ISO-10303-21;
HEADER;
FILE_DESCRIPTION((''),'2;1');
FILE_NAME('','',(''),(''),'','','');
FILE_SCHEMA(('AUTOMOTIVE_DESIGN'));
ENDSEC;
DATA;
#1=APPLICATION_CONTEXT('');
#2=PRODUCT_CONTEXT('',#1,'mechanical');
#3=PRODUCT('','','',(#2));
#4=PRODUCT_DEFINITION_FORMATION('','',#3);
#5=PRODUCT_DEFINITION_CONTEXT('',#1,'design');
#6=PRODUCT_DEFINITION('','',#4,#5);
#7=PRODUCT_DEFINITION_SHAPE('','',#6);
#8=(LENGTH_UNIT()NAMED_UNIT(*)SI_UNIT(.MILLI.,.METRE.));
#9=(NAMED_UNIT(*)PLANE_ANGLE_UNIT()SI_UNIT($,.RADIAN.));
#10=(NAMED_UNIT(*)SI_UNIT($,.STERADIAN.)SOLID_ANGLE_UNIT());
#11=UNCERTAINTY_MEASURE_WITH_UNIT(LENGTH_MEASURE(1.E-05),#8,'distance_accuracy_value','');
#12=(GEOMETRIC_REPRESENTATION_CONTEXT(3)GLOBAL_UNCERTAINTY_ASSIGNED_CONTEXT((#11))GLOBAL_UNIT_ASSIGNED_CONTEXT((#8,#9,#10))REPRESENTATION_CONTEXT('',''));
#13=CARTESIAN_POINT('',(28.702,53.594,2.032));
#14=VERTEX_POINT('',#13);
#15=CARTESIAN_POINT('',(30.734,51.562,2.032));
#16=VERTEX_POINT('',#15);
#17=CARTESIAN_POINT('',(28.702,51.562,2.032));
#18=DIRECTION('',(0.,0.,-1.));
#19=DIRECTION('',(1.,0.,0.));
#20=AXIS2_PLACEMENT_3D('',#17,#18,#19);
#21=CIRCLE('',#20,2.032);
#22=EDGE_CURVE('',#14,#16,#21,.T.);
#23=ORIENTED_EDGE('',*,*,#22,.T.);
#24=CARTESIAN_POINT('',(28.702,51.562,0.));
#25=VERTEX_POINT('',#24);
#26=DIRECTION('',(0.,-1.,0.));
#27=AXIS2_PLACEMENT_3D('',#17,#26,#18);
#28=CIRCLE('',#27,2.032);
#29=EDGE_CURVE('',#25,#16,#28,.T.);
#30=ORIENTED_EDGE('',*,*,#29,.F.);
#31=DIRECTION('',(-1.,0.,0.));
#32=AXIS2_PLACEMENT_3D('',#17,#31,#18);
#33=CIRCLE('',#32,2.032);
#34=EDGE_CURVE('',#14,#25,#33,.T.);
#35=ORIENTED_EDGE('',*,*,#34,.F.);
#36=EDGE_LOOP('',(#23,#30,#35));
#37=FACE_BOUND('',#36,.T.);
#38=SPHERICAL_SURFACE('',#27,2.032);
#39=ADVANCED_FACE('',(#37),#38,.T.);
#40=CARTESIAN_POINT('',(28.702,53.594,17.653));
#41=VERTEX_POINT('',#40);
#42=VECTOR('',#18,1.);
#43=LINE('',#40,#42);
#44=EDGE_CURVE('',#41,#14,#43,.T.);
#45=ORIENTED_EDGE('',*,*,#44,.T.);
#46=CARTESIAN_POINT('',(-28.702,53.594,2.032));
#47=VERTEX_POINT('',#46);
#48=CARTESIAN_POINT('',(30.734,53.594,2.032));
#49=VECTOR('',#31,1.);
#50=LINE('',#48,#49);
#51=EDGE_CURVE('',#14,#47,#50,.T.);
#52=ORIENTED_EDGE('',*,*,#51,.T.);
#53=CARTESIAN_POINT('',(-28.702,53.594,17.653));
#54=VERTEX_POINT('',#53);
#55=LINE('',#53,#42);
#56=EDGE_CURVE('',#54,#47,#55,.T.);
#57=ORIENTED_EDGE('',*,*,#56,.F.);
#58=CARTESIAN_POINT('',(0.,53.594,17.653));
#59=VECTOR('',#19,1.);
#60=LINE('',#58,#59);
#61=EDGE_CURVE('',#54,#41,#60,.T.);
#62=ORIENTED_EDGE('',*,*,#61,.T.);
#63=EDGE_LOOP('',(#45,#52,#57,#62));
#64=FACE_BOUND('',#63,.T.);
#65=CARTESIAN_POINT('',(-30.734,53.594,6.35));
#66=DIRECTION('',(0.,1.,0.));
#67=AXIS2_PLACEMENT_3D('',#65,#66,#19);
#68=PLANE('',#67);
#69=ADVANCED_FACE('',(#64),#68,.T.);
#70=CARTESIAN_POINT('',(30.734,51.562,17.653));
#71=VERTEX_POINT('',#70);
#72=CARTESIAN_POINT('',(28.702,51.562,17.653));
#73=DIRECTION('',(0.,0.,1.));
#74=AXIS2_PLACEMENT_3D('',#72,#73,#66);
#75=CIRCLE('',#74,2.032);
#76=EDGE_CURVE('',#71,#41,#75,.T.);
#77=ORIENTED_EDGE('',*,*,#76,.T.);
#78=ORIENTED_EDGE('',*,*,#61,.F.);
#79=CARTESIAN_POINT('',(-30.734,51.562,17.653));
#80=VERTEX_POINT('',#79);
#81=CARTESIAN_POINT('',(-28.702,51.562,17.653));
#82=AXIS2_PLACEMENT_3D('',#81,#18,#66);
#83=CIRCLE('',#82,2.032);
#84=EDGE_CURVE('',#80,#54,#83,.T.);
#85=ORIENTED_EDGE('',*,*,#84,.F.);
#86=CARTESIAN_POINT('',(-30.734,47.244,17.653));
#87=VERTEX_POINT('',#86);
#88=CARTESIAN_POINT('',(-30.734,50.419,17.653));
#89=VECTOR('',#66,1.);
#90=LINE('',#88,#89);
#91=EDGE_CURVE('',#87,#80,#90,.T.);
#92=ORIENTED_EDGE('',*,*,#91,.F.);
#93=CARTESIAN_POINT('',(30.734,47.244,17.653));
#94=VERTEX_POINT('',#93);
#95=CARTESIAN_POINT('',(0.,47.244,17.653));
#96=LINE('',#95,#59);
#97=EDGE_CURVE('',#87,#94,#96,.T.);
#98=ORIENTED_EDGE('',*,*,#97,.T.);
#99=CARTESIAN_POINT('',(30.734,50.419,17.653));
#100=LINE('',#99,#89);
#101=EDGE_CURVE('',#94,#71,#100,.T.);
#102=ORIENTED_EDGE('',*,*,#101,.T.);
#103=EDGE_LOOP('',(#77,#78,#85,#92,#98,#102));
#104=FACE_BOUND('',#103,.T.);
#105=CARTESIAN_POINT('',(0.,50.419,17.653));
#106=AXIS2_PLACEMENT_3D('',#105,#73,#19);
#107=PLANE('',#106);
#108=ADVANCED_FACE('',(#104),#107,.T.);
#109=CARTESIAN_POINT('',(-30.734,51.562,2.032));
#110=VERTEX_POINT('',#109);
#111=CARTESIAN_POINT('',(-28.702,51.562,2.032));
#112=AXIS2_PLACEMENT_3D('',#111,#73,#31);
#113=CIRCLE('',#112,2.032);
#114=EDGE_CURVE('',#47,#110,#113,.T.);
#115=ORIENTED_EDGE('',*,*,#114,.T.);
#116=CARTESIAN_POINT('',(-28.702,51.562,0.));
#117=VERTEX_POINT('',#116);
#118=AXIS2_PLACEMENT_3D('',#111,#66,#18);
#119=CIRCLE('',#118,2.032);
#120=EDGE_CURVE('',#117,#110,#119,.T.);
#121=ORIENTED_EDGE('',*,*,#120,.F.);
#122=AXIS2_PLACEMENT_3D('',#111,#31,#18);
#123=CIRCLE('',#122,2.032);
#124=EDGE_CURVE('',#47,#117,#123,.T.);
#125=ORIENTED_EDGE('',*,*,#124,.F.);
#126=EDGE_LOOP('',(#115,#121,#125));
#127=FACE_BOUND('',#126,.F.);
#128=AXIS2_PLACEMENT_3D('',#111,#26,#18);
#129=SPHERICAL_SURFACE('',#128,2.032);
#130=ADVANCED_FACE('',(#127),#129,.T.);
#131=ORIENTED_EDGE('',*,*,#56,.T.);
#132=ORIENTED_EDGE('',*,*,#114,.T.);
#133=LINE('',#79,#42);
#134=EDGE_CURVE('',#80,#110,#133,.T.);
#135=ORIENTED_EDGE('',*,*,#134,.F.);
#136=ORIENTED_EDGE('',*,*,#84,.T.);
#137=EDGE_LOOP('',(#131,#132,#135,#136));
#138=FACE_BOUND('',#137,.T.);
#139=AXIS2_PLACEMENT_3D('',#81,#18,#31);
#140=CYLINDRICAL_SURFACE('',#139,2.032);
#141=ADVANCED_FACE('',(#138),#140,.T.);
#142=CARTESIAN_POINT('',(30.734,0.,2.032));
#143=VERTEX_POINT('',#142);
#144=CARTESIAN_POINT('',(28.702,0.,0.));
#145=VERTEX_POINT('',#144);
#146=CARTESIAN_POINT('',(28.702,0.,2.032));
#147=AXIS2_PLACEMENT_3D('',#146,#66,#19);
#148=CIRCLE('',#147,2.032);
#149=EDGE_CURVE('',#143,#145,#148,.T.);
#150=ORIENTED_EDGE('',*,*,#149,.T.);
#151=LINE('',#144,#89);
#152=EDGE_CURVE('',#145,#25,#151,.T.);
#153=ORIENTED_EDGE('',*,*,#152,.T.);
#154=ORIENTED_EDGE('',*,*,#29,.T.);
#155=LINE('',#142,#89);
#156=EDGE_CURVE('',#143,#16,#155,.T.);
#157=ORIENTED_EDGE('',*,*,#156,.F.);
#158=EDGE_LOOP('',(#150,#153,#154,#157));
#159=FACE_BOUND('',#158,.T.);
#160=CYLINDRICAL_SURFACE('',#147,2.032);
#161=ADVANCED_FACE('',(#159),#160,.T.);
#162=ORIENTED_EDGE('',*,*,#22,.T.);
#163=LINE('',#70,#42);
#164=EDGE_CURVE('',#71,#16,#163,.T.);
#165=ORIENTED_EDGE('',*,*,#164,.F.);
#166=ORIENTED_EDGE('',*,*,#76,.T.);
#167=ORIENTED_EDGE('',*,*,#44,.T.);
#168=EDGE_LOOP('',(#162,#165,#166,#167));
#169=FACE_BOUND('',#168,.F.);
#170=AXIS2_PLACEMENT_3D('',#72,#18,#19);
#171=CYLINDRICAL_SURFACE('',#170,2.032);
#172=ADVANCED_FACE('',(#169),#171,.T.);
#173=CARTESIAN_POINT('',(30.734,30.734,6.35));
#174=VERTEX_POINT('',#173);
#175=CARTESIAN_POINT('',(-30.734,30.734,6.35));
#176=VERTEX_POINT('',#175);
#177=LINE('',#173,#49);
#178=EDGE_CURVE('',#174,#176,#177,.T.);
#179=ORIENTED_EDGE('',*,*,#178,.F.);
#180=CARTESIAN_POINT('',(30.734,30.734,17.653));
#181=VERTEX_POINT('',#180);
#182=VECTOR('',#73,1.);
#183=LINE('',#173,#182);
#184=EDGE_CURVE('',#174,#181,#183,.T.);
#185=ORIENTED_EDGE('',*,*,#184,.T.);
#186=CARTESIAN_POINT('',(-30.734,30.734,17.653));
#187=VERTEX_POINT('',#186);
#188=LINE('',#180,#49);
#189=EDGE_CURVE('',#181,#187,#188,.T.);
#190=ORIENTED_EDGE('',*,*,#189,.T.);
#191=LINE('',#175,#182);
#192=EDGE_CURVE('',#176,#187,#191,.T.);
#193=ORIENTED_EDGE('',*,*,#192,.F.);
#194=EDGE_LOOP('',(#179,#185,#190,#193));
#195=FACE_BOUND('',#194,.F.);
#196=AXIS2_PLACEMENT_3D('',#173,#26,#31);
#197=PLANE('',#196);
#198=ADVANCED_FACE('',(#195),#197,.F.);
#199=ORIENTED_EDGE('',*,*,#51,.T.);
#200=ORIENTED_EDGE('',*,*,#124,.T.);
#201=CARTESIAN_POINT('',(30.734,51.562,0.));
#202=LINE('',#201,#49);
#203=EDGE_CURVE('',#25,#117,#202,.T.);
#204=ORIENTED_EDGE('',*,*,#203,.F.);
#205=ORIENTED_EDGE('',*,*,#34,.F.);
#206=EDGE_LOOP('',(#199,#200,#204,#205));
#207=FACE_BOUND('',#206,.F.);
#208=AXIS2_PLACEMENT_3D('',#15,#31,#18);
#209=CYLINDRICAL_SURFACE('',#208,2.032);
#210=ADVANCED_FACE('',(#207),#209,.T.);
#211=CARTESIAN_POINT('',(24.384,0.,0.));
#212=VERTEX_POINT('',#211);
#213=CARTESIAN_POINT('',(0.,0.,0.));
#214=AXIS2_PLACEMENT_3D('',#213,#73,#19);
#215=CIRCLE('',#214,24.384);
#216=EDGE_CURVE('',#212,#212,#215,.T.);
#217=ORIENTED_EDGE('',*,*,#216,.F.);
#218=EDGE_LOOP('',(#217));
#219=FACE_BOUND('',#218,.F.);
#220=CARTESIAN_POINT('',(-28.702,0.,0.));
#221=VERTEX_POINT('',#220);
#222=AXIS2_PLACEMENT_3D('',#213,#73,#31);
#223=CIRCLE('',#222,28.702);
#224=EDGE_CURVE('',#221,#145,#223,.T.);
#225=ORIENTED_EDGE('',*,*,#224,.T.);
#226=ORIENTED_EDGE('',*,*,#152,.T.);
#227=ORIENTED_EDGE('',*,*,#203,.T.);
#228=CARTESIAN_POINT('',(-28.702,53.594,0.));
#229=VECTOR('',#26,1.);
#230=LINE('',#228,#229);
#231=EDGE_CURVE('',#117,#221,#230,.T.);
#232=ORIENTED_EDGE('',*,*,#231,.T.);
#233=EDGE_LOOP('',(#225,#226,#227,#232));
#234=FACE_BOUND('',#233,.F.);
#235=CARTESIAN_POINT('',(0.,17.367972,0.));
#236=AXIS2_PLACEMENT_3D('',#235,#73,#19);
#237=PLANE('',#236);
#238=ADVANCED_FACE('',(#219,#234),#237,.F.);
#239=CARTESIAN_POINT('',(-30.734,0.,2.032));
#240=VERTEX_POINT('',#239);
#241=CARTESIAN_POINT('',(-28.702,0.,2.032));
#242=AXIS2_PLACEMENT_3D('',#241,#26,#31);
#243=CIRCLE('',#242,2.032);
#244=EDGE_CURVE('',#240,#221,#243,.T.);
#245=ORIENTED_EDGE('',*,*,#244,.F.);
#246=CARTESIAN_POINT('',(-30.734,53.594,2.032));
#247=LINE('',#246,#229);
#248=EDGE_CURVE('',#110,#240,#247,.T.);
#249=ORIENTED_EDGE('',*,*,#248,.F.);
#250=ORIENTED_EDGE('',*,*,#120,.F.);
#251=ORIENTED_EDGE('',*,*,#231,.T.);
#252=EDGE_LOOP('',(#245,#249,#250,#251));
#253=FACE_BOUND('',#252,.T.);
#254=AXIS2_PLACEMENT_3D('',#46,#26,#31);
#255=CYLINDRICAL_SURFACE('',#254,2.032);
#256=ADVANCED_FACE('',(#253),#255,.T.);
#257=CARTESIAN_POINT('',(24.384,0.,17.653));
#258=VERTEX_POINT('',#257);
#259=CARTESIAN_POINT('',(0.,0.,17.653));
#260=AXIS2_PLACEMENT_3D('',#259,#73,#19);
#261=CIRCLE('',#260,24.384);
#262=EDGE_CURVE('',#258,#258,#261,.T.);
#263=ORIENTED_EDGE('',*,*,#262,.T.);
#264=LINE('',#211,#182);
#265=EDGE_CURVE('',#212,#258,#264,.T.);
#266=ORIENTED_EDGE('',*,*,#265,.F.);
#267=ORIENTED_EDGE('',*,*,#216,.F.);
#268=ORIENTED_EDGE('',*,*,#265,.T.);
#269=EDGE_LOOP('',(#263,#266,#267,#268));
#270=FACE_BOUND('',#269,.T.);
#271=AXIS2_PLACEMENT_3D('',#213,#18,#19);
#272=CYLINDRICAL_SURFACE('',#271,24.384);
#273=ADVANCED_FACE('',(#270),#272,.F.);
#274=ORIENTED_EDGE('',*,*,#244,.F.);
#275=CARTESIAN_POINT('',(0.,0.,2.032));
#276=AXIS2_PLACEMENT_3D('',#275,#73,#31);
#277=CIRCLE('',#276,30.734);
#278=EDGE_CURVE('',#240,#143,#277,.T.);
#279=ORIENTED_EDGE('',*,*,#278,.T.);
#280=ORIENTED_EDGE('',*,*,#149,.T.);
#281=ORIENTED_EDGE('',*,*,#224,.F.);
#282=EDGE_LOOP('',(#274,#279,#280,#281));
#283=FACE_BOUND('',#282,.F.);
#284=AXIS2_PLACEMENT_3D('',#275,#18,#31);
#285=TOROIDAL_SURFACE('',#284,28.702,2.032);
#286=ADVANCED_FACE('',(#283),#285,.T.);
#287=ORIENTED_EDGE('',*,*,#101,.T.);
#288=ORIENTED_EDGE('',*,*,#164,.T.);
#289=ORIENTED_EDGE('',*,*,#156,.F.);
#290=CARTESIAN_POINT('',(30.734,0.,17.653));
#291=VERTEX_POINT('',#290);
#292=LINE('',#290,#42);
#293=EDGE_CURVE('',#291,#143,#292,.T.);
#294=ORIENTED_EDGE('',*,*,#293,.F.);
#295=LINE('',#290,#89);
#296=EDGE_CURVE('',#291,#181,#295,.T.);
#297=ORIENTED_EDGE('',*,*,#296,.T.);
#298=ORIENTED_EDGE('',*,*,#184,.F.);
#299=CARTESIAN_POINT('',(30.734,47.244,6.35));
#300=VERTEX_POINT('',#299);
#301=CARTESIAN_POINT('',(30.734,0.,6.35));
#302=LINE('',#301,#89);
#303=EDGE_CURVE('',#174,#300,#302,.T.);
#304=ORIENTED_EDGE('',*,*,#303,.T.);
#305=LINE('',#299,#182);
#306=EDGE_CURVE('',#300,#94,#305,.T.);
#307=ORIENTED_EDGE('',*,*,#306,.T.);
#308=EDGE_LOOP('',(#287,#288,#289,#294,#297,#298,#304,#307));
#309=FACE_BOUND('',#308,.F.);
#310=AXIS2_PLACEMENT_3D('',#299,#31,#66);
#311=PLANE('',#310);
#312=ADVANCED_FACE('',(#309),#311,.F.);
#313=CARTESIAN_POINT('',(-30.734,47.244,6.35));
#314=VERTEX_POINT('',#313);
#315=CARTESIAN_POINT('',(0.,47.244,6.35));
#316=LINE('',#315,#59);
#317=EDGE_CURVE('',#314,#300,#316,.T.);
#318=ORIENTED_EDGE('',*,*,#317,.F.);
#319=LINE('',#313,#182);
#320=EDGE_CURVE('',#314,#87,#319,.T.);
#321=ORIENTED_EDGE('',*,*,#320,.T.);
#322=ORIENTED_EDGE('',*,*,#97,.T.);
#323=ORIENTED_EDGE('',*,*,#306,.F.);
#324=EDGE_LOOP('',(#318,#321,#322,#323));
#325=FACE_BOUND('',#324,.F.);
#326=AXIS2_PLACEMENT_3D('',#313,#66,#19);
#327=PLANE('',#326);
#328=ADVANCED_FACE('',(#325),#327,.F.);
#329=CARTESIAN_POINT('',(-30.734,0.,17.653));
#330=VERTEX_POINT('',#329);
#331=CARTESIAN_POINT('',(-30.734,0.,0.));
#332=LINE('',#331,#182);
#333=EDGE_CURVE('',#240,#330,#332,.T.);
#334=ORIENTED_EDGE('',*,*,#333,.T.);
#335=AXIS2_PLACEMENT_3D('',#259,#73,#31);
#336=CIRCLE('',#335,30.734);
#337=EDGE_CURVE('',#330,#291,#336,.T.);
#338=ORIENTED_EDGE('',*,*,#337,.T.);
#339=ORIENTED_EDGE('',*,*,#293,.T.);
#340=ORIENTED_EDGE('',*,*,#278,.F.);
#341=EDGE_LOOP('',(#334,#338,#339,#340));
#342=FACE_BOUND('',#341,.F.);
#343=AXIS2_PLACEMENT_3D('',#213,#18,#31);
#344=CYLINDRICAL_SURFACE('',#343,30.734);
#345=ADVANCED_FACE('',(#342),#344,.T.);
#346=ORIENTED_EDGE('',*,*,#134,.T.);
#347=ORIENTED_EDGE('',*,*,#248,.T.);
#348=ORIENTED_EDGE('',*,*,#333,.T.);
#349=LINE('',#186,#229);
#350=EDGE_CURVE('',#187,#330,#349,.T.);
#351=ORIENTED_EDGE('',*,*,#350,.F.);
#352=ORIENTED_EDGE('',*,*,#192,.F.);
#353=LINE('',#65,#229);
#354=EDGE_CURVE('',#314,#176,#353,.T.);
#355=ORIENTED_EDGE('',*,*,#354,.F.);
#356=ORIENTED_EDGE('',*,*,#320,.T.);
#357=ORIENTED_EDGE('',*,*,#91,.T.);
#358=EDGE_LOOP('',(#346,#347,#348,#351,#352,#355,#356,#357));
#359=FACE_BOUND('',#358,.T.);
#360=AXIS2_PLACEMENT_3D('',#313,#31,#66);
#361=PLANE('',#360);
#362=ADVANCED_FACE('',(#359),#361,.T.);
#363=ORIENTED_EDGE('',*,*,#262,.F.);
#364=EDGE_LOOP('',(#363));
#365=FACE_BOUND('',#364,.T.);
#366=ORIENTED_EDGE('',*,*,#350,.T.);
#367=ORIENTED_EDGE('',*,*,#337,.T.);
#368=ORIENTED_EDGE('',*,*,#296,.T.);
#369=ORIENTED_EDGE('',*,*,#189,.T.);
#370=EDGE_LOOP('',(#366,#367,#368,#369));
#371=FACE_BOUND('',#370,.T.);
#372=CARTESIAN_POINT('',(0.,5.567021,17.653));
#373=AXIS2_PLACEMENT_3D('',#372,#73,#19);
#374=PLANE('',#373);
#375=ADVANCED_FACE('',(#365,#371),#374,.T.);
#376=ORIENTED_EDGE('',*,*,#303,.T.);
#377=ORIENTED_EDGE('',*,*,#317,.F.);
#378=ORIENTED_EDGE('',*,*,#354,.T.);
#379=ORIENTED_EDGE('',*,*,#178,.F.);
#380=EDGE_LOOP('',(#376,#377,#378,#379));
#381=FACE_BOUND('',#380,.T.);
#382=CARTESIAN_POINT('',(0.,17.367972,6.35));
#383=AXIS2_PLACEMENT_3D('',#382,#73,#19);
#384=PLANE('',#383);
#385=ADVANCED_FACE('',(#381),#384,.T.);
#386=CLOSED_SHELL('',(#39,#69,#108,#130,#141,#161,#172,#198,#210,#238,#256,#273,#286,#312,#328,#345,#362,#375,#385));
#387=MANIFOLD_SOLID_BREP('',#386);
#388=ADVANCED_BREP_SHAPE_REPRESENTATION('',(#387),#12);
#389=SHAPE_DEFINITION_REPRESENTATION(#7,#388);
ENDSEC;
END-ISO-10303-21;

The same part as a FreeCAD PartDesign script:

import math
import FreeCAD as App
import Part
import Sketcher
Q = App.Units.Quantity


def edges_at(feature, points):
    """Names of the edges that pass closest to the given points."""
    edges = feature.Shape.Edges
    near = lambda p: min(range(len(edges)), key=lambda i: edges[i].distToShape(Part.Vertex(*p))[0])
    return sorted({f"Edge{near(p) + 1}" for p in points})


def add_polygon(sketch, points):
    """Adds a closed chain of lines whose ends are joined by coincident constraints."""
    first, n = sketch.GeometryCount, len(points)
    for a, b in zip(points, points[1:] + points[:1]):
        sketch.addGeometry(Part.LineSegment(App.Vector(*a, 0), App.Vector(*b, 0)), False)
    for i in range(n):
        sketch.addConstraint(Sketcher.Constraint("Coincident", first + i, 2, first + (i + 1) % n, 1))

doc = App.newDocument("Part")
body = doc.addObject("PartDesign::Body", "Body")

# Sketch on XY plane
sketch1 = doc.addObject("Sketcher::SketchObject", "Sketch")
body.addObject(sketch1)
sketch1.AttachmentSupport = (doc.XY_Plane, [""])
sketch1.MapMode = "FlatFace"
sketch1.addGeometry([
    Part.LineSegment(App.Vector(-30.734, 53.594, 0), App.Vector(-30.734, 0, 0)),  # 0
    Part.ArcOfCircle(Part.Circle(App.Vector(0, 0, 0), App.Vector(0, 0, 1), 30.734), math.radians(180), math.radians(360)),  # 1
    Part.LineSegment(App.Vector(30.734, 0, 0), App.Vector(30.734, 53.594, 0)),  # 2
    Part.LineSegment(App.Vector(30.734, 53.594, 0), App.Vector(-30.734, 53.594, 0)),  # 3
    Part.Circle(App.Vector(0, 0, 0), App.Vector(0, 0, 1), 24.384),  # 4
], False)
sketch1.addConstraint([
    Sketcher.Constraint("Tangent", 0, 2, 1, 1),
    Sketcher.Constraint("Tangent", 1, 2, 2, 1),
    Sketcher.Constraint("Coincident", 2, 2, 3, 1),
    Sketcher.Constraint("Coincident", 3, 2, 0, 1),
    Sketcher.Constraint("Vertical", 0),
    Sketcher.Constraint("Vertical", 2),
    Sketcher.Constraint("Horizontal", 3),
    Sketcher.Constraint("Coincident", 1, 3, -1, 1),
    Sketcher.Constraint("Coincident", 4, 3, -1, 1),
    Sketcher.Constraint("Diameter", 4, Q("1.92 in")),
    Sketcher.Constraint("Radius", 1, Q("1.21 in")),
    Sketcher.Constraint("DistanceY", 0, 2, 0, 1, Q("2.11 in")),
])
pad1 = doc.addObject("PartDesign::Pad", "Pad")
body.addObject(pad1)
pad1.Profile = sketch1
pad1.Length = Q("0.25 in")

# Sketch on XY plane
sketch2 = doc.addObject("Sketcher::SketchObject", "Sketch001")
body.addObject(sketch2)
sketch2.AttachmentSupport = (doc.XY_Plane, [""])
sketch2.MapMode = "FlatFace"
sketch2.AttachmentOffset = App.Placement(App.Vector(0, 0, 0.25 * 25.4), App.Rotation())
add_polygon(sketch2, [(-30.734, 53.594), (-30.734, 47.244), (30.734, 47.244), (30.734, 53.594)])  # lines 0-3
sketch2.addGeometry(Part.LineSegment(App.Vector(30.734, 30.734, 0), App.Vector(-30.734, 30.734, 0)), False)  # 4
sketch2.addGeometry(Part.LineSegment(App.Vector(-30.734, 30.734, 0), App.Vector(-30.734, 0, 0)), False)  # 5
sketch2.addGeometry(Part.ArcOfCircle(Part.Circle(App.Vector(0, 0, 0), App.Vector(0, 0, 1), 30.734), math.radians(180), math.radians(360)), False)  # 6
sketch2.addGeometry(Part.LineSegment(App.Vector(30.734, 0, 0), App.Vector(30.734, 30.734, 0)), False)  # 7
sketch2.addGeometry(Part.Circle(App.Vector(0, 0, 0), App.Vector(0, 0, 1), 24.384), False)  # 8
sketch2.addConstraint([
    Sketcher.Constraint("Coincident", 4, 2, 5, 1),
    Sketcher.Constraint("Tangent", 5, 2, 6, 1),
    Sketcher.Constraint("Tangent", 6, 2, 7, 1),
    Sketcher.Constraint("Coincident", 7, 2, 4, 1),
    Sketcher.Constraint("Vertical", 0),
    Sketcher.Constraint("Horizontal", 1),
    Sketcher.Constraint("Vertical", 2),
    Sketcher.Constraint("Horizontal", 3),
    Sketcher.Constraint("Horizontal", 4),
    Sketcher.Constraint("Vertical", 5),
    Sketcher.Constraint("Vertical", 7),
    Sketcher.Constraint("Coincident", 6, 3, -1, 1),
    Sketcher.Constraint("Coincident", 8, 3, -1, 1),
    Sketcher.Constraint("Vertical", 3, 2, 4, 2),
    Sketcher.Constraint("Vertical", 2, 2, 6, 2),
    Sketcher.Constraint("Diameter", 8, Q("1.92 in")),
    Sketcher.Constraint("Radius", 6, Q("1.21 in")),
    Sketcher.Constraint("DistanceY", 0, 2, 0, 1, Q("0.25 in")),
    Sketcher.Constraint("DistanceY", 5, 2, 5, 1, Q("1.21 in")),
    Sketcher.Constraint("DistanceY", 4, 2, 3, 2, Q("0.9 in")),
])
pad2 = doc.addObject("PartDesign::Pad", "Pad001")
body.addObject(pad2)
pad2.Profile = sketch2
pad2.Length = Q("0.445 in")
doc.recompute()

fillet = doc.addObject("PartDesign::Fillet", "Fillet")
body.addObject(fillet)
fillet.Base = (pad2, edges_at(pad2, [
    (0, -30.734, 0),
    (0, 53.594, 0),
    (30.734, 53.594, 8.826),
    (-30.734, 53.594, 8.826),
]))
fillet.Radius = Q("0.08 in")

doc.recompute()
